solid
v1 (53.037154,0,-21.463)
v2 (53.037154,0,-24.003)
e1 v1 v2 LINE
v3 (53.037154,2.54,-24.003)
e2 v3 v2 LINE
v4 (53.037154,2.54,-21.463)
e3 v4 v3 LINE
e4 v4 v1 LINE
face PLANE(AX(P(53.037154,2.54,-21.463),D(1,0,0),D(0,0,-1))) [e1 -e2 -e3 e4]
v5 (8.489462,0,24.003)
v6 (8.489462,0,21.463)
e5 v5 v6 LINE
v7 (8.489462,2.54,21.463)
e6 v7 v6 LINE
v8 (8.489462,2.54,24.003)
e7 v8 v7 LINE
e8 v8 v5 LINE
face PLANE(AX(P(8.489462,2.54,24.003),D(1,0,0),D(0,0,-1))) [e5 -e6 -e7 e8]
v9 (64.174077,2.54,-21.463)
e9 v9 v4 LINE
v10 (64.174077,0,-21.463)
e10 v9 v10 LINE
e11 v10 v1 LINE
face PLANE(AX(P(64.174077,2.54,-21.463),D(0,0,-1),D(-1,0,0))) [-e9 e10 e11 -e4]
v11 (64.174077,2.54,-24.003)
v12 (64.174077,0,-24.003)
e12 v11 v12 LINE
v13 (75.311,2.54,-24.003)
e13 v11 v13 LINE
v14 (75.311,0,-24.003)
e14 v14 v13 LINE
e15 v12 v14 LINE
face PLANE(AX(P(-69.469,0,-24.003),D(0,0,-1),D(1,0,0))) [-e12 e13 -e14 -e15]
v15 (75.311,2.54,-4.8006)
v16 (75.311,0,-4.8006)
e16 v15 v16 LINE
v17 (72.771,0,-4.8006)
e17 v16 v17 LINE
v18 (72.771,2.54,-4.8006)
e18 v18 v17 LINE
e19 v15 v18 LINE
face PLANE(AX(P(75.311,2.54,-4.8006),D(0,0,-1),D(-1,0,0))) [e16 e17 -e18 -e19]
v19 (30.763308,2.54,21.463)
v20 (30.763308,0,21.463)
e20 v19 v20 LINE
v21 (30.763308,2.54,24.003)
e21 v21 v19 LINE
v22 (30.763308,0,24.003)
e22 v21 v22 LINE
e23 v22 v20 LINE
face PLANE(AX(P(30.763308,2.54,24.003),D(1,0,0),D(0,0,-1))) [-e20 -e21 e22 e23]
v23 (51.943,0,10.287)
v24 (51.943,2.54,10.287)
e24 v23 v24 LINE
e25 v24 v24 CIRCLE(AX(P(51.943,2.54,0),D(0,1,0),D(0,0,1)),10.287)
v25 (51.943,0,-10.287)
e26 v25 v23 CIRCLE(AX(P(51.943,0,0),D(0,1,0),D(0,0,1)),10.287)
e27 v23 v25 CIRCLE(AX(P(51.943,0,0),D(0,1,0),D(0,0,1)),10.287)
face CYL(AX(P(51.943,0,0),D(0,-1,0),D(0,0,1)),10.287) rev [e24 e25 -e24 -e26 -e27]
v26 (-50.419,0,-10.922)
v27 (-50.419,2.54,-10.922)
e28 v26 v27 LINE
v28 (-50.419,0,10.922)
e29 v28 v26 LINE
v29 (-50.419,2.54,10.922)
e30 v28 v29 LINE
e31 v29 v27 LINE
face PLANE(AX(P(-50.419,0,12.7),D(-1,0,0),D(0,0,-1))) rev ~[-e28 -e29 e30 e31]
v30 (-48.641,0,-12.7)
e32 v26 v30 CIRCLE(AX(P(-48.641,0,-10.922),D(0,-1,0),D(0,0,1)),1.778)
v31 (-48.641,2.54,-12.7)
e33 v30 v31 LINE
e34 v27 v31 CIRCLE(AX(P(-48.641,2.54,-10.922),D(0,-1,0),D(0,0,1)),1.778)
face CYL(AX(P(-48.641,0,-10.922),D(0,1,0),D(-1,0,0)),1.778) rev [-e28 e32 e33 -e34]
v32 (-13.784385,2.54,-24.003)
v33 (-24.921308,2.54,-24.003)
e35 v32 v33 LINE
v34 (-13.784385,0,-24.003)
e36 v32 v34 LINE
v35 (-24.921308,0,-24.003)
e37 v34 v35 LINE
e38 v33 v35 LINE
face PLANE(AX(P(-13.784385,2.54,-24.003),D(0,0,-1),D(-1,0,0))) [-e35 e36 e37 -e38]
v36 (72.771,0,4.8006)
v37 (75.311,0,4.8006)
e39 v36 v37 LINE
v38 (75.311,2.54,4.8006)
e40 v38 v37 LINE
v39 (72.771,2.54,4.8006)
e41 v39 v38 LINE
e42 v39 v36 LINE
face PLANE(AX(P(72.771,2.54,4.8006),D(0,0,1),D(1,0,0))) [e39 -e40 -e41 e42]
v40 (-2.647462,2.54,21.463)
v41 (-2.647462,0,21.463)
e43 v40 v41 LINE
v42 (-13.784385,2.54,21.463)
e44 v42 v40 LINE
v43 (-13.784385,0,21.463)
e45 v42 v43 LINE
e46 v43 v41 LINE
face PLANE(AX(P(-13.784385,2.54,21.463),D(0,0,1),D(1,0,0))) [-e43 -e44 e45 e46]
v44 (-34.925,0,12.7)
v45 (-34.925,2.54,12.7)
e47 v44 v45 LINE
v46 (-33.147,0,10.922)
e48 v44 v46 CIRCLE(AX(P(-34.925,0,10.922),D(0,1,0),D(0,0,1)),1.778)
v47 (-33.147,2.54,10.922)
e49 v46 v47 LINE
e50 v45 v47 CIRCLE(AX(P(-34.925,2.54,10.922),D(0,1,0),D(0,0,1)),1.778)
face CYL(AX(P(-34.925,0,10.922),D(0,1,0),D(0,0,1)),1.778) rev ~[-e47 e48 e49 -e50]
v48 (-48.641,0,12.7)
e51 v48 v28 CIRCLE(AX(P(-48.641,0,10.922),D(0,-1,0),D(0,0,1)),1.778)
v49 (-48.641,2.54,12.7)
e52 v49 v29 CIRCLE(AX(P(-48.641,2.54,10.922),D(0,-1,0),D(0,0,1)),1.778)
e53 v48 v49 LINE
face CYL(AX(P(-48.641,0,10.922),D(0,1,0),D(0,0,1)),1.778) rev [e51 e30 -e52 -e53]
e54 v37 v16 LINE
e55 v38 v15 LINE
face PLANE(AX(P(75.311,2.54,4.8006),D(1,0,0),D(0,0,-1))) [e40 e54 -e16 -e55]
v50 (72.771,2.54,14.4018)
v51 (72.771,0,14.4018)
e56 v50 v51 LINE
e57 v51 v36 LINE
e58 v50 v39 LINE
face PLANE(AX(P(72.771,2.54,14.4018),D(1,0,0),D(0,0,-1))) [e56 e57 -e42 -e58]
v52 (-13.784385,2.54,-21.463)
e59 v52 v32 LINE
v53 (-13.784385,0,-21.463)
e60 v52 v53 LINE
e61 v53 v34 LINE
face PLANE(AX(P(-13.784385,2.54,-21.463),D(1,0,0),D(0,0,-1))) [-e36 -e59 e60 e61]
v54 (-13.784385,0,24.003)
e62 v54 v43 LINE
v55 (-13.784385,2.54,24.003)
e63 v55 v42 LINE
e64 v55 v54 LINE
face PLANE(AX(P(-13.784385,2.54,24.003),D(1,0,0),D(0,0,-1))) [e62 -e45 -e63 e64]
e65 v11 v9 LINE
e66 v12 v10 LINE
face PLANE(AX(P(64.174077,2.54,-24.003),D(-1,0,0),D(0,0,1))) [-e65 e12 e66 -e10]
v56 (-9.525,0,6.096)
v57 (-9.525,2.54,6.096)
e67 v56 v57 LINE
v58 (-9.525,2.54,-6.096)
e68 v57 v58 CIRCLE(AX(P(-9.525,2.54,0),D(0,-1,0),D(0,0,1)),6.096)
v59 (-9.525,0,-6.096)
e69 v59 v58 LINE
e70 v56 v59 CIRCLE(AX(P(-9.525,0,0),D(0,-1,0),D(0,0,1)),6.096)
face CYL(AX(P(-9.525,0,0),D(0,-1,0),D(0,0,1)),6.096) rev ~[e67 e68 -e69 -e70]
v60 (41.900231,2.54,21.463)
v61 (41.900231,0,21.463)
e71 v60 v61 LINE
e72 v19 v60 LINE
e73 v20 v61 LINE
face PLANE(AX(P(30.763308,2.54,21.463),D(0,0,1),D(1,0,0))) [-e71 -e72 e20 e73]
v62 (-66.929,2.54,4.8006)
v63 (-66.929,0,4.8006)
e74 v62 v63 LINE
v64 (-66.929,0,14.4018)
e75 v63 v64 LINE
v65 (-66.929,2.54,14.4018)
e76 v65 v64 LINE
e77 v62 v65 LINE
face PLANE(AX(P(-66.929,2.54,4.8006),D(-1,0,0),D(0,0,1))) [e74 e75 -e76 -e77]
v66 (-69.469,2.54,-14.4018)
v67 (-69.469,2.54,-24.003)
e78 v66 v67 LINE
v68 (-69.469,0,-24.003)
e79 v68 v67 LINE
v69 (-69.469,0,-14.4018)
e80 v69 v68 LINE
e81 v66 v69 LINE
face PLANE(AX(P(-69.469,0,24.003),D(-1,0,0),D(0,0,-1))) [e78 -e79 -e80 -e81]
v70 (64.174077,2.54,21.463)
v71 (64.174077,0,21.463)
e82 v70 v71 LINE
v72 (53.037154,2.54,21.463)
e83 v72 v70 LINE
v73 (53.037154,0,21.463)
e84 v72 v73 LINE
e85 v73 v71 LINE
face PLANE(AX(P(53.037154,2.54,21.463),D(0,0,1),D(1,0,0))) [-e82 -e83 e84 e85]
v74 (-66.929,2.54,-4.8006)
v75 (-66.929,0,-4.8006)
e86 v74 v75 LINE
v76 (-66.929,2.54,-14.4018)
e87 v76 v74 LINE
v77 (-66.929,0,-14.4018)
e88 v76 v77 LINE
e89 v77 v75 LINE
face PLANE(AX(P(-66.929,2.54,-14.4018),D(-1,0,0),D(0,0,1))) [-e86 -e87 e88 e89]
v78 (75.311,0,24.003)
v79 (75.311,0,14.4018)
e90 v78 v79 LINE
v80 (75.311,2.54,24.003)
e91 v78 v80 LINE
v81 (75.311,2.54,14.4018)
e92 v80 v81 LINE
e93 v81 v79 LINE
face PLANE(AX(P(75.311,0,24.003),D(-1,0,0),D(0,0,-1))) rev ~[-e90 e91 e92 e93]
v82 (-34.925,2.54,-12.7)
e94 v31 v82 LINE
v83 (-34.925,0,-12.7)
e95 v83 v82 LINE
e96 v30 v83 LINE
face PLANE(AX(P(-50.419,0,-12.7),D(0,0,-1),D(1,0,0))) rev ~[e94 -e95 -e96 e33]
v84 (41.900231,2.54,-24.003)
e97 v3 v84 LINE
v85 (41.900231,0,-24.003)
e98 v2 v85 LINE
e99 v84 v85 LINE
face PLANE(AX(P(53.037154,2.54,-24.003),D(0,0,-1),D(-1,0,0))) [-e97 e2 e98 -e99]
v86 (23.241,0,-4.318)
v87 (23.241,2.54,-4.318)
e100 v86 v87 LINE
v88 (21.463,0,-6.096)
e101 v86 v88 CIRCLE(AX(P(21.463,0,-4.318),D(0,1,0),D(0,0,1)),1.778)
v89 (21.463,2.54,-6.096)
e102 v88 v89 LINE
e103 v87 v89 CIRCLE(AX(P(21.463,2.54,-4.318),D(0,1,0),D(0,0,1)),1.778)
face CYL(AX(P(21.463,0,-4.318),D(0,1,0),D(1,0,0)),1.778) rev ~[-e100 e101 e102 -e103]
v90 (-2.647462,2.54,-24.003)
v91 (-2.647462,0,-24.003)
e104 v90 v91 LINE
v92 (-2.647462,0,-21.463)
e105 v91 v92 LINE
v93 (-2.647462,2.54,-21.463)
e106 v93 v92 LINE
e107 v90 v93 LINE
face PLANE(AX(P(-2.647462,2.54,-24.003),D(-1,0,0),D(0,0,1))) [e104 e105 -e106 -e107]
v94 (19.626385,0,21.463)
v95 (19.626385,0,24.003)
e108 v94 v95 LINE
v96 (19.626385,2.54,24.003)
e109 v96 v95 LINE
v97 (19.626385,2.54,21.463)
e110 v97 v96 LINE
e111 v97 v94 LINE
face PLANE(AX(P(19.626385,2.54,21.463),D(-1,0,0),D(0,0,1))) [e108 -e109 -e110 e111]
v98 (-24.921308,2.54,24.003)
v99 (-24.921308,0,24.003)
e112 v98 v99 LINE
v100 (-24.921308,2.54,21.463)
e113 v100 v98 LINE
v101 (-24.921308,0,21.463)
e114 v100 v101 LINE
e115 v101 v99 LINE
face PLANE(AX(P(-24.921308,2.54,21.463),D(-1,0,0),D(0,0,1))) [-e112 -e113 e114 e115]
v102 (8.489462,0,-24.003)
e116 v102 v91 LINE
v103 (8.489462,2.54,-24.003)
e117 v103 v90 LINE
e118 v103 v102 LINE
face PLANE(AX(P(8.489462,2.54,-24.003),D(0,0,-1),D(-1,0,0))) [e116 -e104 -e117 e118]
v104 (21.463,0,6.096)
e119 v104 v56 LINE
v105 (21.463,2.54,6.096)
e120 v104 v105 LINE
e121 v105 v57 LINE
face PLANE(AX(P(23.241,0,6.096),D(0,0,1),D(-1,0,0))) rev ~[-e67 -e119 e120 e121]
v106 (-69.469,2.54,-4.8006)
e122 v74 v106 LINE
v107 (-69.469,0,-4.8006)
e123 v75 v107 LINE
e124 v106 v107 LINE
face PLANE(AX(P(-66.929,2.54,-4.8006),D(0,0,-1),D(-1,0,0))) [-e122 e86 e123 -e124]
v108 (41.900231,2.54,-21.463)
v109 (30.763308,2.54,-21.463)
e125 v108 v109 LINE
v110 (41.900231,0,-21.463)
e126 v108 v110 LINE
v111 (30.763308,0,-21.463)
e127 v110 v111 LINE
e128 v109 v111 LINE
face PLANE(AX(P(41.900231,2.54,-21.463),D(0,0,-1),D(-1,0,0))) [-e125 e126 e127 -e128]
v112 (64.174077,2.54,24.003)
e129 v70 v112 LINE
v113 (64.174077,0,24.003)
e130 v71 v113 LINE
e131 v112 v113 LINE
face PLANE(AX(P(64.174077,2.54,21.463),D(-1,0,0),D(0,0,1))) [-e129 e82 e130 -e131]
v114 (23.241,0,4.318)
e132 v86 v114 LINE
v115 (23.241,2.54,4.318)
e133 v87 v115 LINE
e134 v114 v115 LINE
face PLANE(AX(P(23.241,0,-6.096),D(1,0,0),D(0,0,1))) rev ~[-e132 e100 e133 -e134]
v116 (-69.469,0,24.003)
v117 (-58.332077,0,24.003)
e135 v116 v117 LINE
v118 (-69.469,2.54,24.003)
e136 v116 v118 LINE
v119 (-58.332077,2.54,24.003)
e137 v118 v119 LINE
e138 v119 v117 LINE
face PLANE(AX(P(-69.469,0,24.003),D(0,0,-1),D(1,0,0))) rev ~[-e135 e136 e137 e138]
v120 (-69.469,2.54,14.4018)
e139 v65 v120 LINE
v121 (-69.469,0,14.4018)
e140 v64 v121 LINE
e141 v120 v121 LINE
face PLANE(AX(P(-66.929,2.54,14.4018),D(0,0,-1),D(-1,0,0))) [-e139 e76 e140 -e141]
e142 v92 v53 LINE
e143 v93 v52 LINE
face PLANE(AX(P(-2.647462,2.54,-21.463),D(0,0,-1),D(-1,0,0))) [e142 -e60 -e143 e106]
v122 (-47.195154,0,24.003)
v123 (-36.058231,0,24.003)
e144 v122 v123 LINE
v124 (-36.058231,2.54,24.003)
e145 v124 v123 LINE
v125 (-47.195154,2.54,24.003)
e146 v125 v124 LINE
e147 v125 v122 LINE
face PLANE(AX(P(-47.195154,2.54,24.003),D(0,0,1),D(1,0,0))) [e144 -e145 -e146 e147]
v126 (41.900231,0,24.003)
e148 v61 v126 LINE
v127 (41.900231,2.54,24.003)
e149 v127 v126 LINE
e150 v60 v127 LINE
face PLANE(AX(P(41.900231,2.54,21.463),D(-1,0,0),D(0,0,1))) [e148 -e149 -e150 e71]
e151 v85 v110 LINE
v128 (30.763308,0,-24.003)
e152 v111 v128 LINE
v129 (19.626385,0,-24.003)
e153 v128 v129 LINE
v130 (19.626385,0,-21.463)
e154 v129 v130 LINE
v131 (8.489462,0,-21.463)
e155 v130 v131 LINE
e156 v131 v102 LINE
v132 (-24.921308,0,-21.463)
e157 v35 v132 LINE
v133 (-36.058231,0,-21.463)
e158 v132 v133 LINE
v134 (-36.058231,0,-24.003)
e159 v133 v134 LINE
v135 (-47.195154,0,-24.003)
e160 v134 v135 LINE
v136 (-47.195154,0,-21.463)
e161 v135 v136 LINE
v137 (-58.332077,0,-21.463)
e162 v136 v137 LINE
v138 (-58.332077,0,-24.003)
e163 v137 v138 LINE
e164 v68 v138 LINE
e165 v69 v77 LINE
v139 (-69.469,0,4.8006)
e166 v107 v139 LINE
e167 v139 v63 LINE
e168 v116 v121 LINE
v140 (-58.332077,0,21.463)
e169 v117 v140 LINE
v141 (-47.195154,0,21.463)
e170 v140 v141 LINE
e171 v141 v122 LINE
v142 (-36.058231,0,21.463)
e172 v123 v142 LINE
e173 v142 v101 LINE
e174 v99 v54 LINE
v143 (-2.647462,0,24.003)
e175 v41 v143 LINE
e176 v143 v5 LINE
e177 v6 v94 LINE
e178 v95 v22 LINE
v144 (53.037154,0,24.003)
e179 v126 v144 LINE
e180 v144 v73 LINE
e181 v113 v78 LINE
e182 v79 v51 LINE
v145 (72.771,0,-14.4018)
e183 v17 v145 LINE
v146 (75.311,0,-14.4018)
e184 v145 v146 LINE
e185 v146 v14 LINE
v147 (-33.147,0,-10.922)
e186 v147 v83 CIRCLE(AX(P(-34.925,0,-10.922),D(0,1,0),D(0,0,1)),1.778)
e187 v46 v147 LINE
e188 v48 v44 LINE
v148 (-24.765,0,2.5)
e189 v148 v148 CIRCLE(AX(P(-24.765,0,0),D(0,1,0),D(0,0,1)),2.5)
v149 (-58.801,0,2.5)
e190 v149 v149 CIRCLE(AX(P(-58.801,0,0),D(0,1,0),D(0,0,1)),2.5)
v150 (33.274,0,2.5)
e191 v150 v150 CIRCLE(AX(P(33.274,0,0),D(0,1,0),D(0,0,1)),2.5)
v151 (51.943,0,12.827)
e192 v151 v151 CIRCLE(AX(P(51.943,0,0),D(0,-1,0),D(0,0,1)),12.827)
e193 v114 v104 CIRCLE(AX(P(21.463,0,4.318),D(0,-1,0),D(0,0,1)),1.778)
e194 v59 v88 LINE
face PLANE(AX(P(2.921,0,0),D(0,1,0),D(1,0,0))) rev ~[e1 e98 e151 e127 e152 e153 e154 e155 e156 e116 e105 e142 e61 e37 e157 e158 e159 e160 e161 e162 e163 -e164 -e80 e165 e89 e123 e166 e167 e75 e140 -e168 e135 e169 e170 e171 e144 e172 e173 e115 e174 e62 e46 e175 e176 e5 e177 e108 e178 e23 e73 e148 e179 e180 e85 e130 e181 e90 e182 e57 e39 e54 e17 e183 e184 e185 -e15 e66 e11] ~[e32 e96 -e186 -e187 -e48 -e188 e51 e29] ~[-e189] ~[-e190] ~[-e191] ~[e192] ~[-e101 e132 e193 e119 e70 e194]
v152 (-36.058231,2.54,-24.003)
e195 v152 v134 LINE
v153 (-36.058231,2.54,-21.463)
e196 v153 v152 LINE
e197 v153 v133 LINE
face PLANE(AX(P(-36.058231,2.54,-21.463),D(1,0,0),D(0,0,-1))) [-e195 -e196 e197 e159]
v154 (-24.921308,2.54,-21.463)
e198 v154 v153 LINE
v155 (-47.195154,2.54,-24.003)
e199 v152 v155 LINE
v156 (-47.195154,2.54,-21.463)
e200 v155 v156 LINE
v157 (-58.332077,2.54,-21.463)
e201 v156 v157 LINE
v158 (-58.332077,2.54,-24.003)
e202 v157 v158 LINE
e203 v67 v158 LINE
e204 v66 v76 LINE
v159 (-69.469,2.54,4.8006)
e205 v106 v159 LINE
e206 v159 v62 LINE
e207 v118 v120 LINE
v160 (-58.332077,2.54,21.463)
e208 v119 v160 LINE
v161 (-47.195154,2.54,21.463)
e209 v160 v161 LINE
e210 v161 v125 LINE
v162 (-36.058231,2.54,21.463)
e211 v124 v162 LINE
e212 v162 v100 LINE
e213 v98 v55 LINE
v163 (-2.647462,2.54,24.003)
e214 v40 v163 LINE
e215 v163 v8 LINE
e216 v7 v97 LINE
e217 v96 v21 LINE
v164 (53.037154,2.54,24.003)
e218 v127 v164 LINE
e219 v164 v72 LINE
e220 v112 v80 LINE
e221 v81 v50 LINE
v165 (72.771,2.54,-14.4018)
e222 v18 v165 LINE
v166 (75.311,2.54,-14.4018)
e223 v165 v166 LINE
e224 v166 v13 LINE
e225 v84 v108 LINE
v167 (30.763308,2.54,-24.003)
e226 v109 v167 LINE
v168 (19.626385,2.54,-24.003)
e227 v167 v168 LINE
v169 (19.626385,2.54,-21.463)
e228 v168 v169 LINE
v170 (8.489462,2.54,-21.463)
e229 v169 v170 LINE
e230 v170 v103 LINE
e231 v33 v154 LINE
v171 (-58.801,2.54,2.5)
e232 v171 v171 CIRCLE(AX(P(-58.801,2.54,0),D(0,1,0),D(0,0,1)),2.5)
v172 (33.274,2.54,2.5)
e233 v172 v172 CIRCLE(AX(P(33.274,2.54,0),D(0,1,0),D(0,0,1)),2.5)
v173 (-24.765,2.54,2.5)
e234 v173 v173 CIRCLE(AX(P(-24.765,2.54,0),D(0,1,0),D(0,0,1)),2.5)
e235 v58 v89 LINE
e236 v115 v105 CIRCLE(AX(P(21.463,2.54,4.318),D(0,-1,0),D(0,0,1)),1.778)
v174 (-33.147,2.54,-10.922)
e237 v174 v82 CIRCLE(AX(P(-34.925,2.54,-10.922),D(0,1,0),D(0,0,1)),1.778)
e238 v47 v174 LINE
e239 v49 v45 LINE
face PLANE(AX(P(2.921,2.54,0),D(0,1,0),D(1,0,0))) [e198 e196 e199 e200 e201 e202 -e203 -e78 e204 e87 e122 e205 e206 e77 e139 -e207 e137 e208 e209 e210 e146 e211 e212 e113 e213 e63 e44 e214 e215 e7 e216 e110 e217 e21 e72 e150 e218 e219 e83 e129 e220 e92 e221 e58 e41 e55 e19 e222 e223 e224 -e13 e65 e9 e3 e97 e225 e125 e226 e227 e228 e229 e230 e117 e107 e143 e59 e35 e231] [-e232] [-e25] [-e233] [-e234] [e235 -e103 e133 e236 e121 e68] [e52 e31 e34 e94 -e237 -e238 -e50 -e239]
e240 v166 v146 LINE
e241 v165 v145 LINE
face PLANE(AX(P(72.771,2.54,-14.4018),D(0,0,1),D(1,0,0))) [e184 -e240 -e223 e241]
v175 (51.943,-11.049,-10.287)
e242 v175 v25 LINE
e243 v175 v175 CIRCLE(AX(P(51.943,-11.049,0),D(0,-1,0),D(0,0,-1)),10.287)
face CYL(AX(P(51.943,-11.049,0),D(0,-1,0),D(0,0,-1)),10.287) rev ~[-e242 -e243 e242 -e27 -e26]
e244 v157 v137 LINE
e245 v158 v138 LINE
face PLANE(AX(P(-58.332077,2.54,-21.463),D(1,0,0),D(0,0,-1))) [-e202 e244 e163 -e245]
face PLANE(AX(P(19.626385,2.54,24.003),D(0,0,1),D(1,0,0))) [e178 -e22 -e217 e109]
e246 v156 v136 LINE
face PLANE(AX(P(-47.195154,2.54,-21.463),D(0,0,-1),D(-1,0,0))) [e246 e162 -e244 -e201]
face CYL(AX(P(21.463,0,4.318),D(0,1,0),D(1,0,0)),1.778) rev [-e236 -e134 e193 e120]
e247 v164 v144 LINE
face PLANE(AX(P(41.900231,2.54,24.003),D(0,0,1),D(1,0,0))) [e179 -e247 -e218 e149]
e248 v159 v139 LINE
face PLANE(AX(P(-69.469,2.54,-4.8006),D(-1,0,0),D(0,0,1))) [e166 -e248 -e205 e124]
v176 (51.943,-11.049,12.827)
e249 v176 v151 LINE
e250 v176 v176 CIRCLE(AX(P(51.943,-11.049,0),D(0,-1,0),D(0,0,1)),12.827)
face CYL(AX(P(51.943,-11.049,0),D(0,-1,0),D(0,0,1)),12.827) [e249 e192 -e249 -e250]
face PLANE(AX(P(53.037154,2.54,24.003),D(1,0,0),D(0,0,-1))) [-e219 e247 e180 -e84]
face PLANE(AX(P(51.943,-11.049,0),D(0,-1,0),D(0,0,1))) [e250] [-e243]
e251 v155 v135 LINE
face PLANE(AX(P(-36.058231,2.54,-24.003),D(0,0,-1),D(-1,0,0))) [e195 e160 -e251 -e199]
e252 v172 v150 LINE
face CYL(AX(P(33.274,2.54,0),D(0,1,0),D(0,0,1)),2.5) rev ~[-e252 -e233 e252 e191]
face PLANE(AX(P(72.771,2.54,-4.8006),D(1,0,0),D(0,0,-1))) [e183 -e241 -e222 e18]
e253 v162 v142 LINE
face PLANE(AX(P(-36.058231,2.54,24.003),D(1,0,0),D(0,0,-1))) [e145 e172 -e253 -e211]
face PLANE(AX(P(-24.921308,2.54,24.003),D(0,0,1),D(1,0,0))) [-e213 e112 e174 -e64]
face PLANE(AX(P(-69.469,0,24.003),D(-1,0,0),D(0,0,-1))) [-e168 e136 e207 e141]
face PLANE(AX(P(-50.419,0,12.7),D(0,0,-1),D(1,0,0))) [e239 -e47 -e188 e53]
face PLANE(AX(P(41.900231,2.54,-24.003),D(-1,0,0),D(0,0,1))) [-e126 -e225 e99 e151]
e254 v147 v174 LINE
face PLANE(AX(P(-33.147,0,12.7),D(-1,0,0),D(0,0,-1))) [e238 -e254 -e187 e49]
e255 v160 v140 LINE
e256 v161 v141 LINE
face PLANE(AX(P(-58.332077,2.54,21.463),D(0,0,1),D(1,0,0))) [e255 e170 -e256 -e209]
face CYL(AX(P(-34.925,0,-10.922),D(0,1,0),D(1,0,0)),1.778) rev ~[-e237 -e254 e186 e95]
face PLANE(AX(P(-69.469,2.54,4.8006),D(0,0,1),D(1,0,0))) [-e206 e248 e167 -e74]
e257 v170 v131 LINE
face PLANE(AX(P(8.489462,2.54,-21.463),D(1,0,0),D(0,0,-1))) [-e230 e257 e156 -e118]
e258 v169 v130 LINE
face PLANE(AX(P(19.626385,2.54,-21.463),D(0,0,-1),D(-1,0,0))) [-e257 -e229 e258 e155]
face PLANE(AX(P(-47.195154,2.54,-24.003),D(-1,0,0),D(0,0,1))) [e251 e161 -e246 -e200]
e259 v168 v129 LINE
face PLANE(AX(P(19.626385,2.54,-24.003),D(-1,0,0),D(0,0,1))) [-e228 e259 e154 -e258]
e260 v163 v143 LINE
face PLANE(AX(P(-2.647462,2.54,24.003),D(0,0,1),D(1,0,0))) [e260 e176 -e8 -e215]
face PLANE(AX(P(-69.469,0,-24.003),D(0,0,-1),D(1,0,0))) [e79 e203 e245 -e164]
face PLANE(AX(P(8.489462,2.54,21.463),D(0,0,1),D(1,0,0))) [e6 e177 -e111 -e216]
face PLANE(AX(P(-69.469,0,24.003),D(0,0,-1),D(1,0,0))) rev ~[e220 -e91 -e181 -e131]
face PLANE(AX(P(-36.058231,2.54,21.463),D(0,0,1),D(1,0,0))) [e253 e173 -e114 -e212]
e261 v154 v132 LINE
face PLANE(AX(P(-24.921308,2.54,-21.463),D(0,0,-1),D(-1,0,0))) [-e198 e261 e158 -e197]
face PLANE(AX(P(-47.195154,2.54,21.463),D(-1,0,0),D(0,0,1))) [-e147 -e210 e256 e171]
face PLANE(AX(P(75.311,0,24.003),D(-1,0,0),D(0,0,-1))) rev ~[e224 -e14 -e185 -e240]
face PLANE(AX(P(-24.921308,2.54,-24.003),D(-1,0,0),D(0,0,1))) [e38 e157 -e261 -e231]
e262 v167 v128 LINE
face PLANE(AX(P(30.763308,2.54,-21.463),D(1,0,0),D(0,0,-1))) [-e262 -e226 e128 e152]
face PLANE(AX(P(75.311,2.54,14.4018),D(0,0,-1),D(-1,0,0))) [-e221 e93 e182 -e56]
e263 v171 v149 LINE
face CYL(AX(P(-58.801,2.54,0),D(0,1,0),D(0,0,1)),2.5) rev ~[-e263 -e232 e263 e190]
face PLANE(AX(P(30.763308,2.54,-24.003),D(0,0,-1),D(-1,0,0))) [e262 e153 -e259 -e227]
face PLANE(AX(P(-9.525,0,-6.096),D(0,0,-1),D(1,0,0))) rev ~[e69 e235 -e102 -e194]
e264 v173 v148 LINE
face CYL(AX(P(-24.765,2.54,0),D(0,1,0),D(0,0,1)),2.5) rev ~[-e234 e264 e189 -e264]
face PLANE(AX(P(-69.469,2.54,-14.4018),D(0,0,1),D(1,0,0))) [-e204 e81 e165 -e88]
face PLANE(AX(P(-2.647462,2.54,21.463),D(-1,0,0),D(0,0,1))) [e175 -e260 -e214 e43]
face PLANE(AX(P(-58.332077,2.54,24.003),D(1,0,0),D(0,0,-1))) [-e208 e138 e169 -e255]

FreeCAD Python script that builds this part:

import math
import FreeCAD as App
import Part
import Sketcher
Q = App.Units.Quantity


def edges_at(feature, points):
    """Names of the edges that pass closest to the given points."""
    edges = feature.Shape.Edges
    near = lambda p: min(range(len(edges)), key=lambda i: edges[i].distToShape(Part.Vertex(*p))[0])
    return sorted({f"Edge{near(p) + 1}" for p in points})

doc = App.newDocument("Part")
body = doc.addObject("PartDesign::Body", "Body")

# Sketch on XZ plane
sketch1 = body.newObject("Sketcher::SketchObject", "Sketch")
sketch1.AttachmentSupport = (doc.getObject("XZ_Plane"), [""])
sketch1.MapMode = "FlatFace"
sketch1.addGeometry([
    Part.LineSegment(App.Vector(-69.469, -24.003, 0), App.Vector(-69.469, 24.003, 0)),  # 0
    Part.LineSegment(App.Vector(-69.469, 24.003, 0), App.Vector(75.311, 24.003, 0)),  # 1
    Part.LineSegment(App.Vector(75.311, 24.003, 0), App.Vector(75.311, -24.003, 0)),  # 2
    Part.LineSegment(App.Vector(75.311, -24.003, 0), App.Vector(-69.469, -24.003, 0)),  # 3
    Part.LineSegment(App.Vector(-33.147, 12.7, 0), App.Vector(-50.419, 12.7, 0)),  # 4
    Part.LineSegment(App.Vector(-50.419, 12.7, 0), App.Vector(-50.419, -12.7, 0)),  # 5
    Part.LineSegment(App.Vector(-50.419, -12.7, 0), App.Vector(-33.147, -12.7, 0)),  # 6
    Part.LineSegment(App.Vector(-33.147, -12.7, 0), App.Vector(-33.147, 12.7, 0)),  # 7
    Part.LineSegment(App.Vector(23.241, -6.096, 0), App.Vector(23.241, 6.096, 0)),  # 8
    Part.LineSegment(App.Vector(23.241, 6.096, 0), App.Vector(-9.525, 6.096, 0)),  # 9
    Part.ArcOfCircle(Part.Circle(App.Vector(-9.525, 0, 0), App.Vector(0, 0, 1), 6.096), math.radians(90), math.radians(270)),  # 10
    Part.LineSegment(App.Vector(-9.525, -6.096, 0), App.Vector(23.241, -6.096, 0)),  # 11
    Part.Circle(App.Vector(51.943, 0, 0), App.Vector(0, 0, 1), 10.287),  # 12
], False)
sketch1.addConstraint([
    Sketcher.Constraint("Coincident", 0, 2, 1, 1),
    Sketcher.Constraint("Coincident", 1, 2, 2, 1),
    Sketcher.Constraint("Coincident", 2, 2, 3, 1),
    Sketcher.Constraint("Coincident", 3, 2, 0, 1),
    Sketcher.Constraint("Coincident", 4, 2, 5, 1),
    Sketcher.Constraint("Coincident", 5, 2, 6, 1),
    Sketcher.Constraint("Coincident", 6, 2, 7, 1),
    Sketcher.Constraint("Coincident", 7, 2, 4, 1),
    Sketcher.Constraint("Coincident", 8, 2, 9, 1),
    Sketcher.Constraint("Tangent", 9, 2, 10, 1),
    Sketcher.Constraint("Tangent", 10, 2, 11, 1),
    Sketcher.Constraint("Coincident", 11, 2, 8, 1),
    Sketcher.Constraint("Vertical", 0),
    Sketcher.Constraint("Horizontal", 1),
    Sketcher.Constraint("Vertical", 2),
    Sketcher.Constraint("Horizontal", 3),
    Sketcher.Constraint("Horizontal", 4),
    Sketcher.Constraint("Vertical", 5),
    Sketcher.Constraint("Horizontal", 6),
    Sketcher.Constraint("Vertical", 7),
    Sketcher.Constraint("Vertical", 8),
    Sketcher.Constraint("Horizontal", 9),
    Sketcher.Constraint("Horizontal", 11),
    Sketcher.Constraint("PointOnObject", 10, 3, -1),
    Sketcher.Constraint("PointOnObject", 12, 3, -1),
    Sketcher.Constraint("Diameter", 12, Q("0.81 in")),
    Sketcher.Constraint("DistanceY", 5, 2, 5, 1, Q("1 in")),
    Sketcher.Constraint("Radius", 10, Q("0.24 in")),
    Sketcher.Constraint("DistanceX", 1, 1, 1, 2, Q("5.7 in")),
    Sketcher.Constraint("DistanceX", 4, 2, 4, 1, Q("0.68 in")),
    Sketcher.Constraint("DistanceX", 9, 2, 9, 1, Q("1.29 in")),
    Sketcher.Constraint("DistanceY", 0, 1, 0, 2, Q("1.89 in")),
    Sketcher.Constraint("DistanceY", -1, 1, 4, 2, Q("0.5 in")),
    Sketcher.Constraint("DistanceX", 10, 3, 12, 3, Q("2.42 in")),
    Sketcher.Constraint("DistanceX", 0, 2, 10, 3, Q("2.36 in")),
    Sketcher.Constraint("DistanceX", 0, 2, 4, 2, Q("0.75 in")),
    Sketcher.Constraint("DistanceX", 10, 3, -1, 1, Q("0.375 in")),
    Sketcher.Constraint("DistanceY", -1, 1, 0, 2, Q("0.945 in")),
])
pad1 = body.newObject("PartDesign::Pad", "Pad")
pad1.Profile = sketch1
pad1.Length = Q("0.1 in")
pad1.Reversed = True
doc.recompute()

fillet = body.newObject("PartDesign::Fillet", "Fillet")
fillet.Base = (pad1, edges_at(pad1, [
    (23.241, 1.27, 6.096),
    (23.241, 1.27, -6.096),
    (-50.419, 1.27, -12.7),
    (-50.419, 1.27, 12.7),
    (-33.147, 1.27, 12.7),
    (-33.147, 1.27, -12.7),
]))
fillet.Radius = Q("0.07 in")

# Sketch on XZ plane
sketch2 = body.newObject("Sketcher::SketchObject", "Sketch001")
sketch2.AttachmentSupport = (doc.getObject("XZ_Plane"), [""])
sketch2.MapMode = "FlatFace"
sketch2.AttachmentOffset = App.Placement(App.Vector(0, 0, -0.1 * 25.4), App.Rotation())
sketch2.addGeometry([
    Part.LineSegment(App.Vector(-85.724, -40.258, 0), App.Vector(-85.724, 40.258, 0)),  # 0
    Part.LineSegment(App.Vector(-85.724, 40.258, 0), App.Vector(91.566, 40.258, 0)),  # 1
    Part.LineSegment(App.Vector(91.566, 40.258, 0), App.Vector(91.566, -40.258, 0)),  # 2
    Part.LineSegment(App.Vector(91.566, -40.258, 0), App.Vector(-85.724, -40.258, 0)),  # 3
    Part.LineSegment(App.Vector(-69.469, -14.4018, 0), App.Vector(-69.469, -24.003, 0)),  # 4
    Part.LineSegment(App.Vector(-69.469, -24.003, 0), App.Vector(-58.332077, -24.003, 0)),  # 5
    Part.LineSegment(App.Vector(-58.332077, -24.003, 0), App.Vector(-58.332077, -21.463, 0)),  # 6
    Part.LineSegment(App.Vector(-58.332077, -21.463, 0), App.Vector(-47.195154, -21.463, 0)),  # 7
    Part.LineSegment(App.Vector(-47.195154, -21.463, 0), App.Vector(-47.195154, -24.003, 0)),  # 8
    Part.LineSegment(App.Vector(-47.195154, -24.003, 0), App.Vector(-36.058231, -24.003, 0)),  # 9
    Part.LineSegment(App.Vector(-36.058231, -24.003, 0), App.Vector(-36.058231, -21.463, 0)),  # 10
    Part.LineSegment(App.Vector(-36.058231, -21.463, 0), App.Vector(-24.921308, -21.463, 0)),  # 11
    Part.LineSegment(App.Vector(-24.921308, -21.463, 0), App.Vector(-24.921308, -24.003, 0)),  # 12
    Part.LineSegment(App.Vector(-24.921308, -24.003, 0), App.Vector(-13.784385, -24.003, 0)),  # 13
    Part.LineSegment(App.Vector(-13.784385, -24.003, 0), App.Vector(-13.784385, -21.463, 0)),  # 14
    Part.LineSegment(App.Vector(-13.784385, -21.463, 0), App.Vector(-2.647462, -21.463, 0)),  # 15
    Part.LineSegment(App.Vector(-2.647462, -21.463, 0), App.Vector(-2.647462, -24.003, 0)),  # 16
    Part.LineSegment(App.Vector(-2.647462, -24.003, 0), App.Vector(8.489462, -24.003, 0)),  # 17
    Part.LineSegment(App.Vector(8.489462, -24.003, 0), App.Vector(8.489462, -21.463, 0)),  # 18
    Part.LineSegment(App.Vector(8.489462, -21.463, 0), App.Vector(19.626385, -21.463, 0)),  # 19
    Part.LineSegment(App.Vector(19.626385, -21.463, 0), App.Vector(19.626385, -24.003, 0)),  # 20
    Part.LineSegment(App.Vector(19.626385, -24.003, 0), App.Vector(30.763308, -24.003, 0)),  # 21
    Part.LineSegment(App.Vector(30.763308, -24.003, 0), App.Vector(30.763308, -21.463, 0)),  # 22
    Part.LineSegment(App.Vector(30.763308, -21.463, 0), App.Vector(41.900231, -21.463, 0)),  # 23
    Part.LineSegment(App.Vector(41.900231, -21.463, 0), App.Vector(41.900231, -24.003, 0)),  # 24
    Part.LineSegment(App.Vector(41.900231, -24.003, 0), App.Vector(53.037154, -24.003, 0)),  # 25
    Part.LineSegment(App.Vector(53.037154, -24.003, 0), App.Vector(53.037154, -21.463, 0)),  # 26
    Part.LineSegment(App.Vector(53.037154, -21.463, 0), App.Vector(64.174077, -21.463, 0)),  # 27
    Part.LineSegment(App.Vector(64.174077, -21.463, 0), App.Vector(64.174077, -24.003, 0)),  # 28
    Part.LineSegment(App.Vector(64.174077, -24.003, 0), App.Vector(75.311, -24.003, 0)),  # 29
    Part.LineSegment(App.Vector(75.311, -24.003, 0), App.Vector(75.311, -14.4018, 0)),  # 30
    Part.LineSegment(App.Vector(75.311, -14.4018, 0), App.Vector(72.771, -14.4018, 0)),  # 31
    Part.LineSegment(App.Vector(72.771, -14.4018, 0), App.Vector(72.771, -4.8006, 0)),  # 32
    Part.LineSegment(App.Vector(72.771, -4.8006, 0), App.Vector(75.311, -4.8006, 0)),  # 33
    Part.LineSegment(App.Vector(75.311, -4.8006, 0), App.Vector(75.311, 4.8006, 0)),  # 34
    Part.LineSegment(App.Vector(75.311, 4.8006, 0), App.Vector(72.771, 4.8006, 0)),  # 35
    Part.LineSegment(App.Vector(72.771, 4.8006, 0), App.Vector(72.771, 14.4018, 0)),  # 36
    Part.LineSegment(App.Vector(72.771, 14.4018, 0), App.Vector(75.311, 14.4018, 0)),  # 37
    Part.LineSegment(App.Vector(75.311, 14.4018, 0), App.Vector(75.311, 24.003, 0)),  # 38
    Part.LineSegment(App.Vector(75.311, 24.003, 0), App.Vector(64.174077, 24.003, 0)),  # 39
    Part.LineSegment(App.Vector(64.174077, 24.003, 0), App.Vector(64.174077, 21.463, 0)),  # 40
    Part.LineSegment(App.Vector(64.174077, 21.463, 0), App.Vector(53.037154, 21.463, 0)),  # 41
    Part.LineSegment(App.Vector(53.037154, 21.463, 0), App.Vector(53.037154, 24.003, 0)),  # 42
    Part.LineSegment(App.Vector(53.037154, 24.003, 0), App.Vector(41.900231, 24.003, 0)),  # 43
    Part.LineSegment(App.Vector(41.900231, 24.003, 0), App.Vector(41.900231, 21.463, 0)),  # 44
    Part.LineSegment(App.Vector(41.900231, 21.463, 0), App.Vector(30.763308, 21.463, 0)),  # 45
    Part.LineSegment(App.Vector(30.763308, 21.463, 0), App.Vector(30.763308, 24.003, 0)),  # 46
    Part.LineSegment(App.Vector(30.763308, 24.003, 0), App.Vector(19.626385, 24.003, 0)),  # 47
    Part.LineSegment(App.Vector(19.626385, 24.003, 0), App.Vector(19.626385, 21.463, 0)),  # 48
    Part.LineSegment(App.Vector(19.626385, 21.463, 0), App.Vector(8.489462, 21.463, 0)),  # 49
    Part.LineSegment(App.Vector(8.489462, 21.463, 0), App.Vector(8.489462, 24.003, 0)),  # 50
    Part.LineSegment(App.Vector(8.489462, 24.003, 0), App.Vector(-2.647462, 24.003, 0)),  # 51
    Part.LineSegment(App.Vector(-2.647462, 24.003, 0), App.Vector(-2.647462, 21.463, 0)),  # 52
    Part.LineSegment(App.Vector(-2.647462, 21.463, 0), App.Vector(-13.784385, 21.463, 0)),  # 53
    Part.LineSegment(App.Vector(-13.784385, 21.463, 0), App.Vector(-13.784385, 24.003, 0)),  # 54
    Part.LineSegment(App.Vector(-13.784385, 24.003, 0), App.Vector(-24.921308, 24.003, 0)),  # 55
    Part.LineSegment(App.Vector(-24.921308, 24.003, 0), App.Vector(-24.921308, 21.463, 0)),  # 56
    Part.LineSegment(App.Vector(-24.921308, 21.463, 0), App.Vector(-36.058231, 21.463, 0)),  # 57
    Part.LineSegment(App.Vector(-36.058231, 21.463, 0), App.Vector(-36.058231, 24.003, 0)),  # 58
    Part.LineSegment(App.Vector(-36.058231, 24.003, 0), App.Vector(-47.195154, 24.003, 0)),  # 59
    Part.LineSegment(App.Vector(-47.195154, 24.003, 0), App.Vector(-47.195154, 21.463, 0)),  # 60
    Part.LineSegment(App.Vector(-47.195154, 21.463, 0), App.Vector(-58.332077, 21.463, 0)),  # 61
    Part.LineSegment(App.Vector(-58.332077, 21.463, 0), App.Vector(-58.332077, 24.003, 0)),  # 62
    Part.LineSegment(App.Vector(-58.332077, 24.003, 0), App.Vector(-69.469, 24.003, 0)),  # 63
    Part.LineSegment(App.Vector(-69.469, 24.003, 0), App.Vector(-69.469, 14.4018, 0)),  # 64
    Part.LineSegment(App.Vector(-69.469, 14.4018, 0), App.Vector(-66.929, 14.4018, 0)),  # 65
    Part.LineSegment(App.Vector(-66.929, 14.4018, 0), App.Vector(-66.929, 4.8006, 0)),  # 66
    Part.LineSegment(App.Vector(-66.929, 4.8006, 0), App.Vector(-69.469, 4.8006, 0)),  # 67
    Part.LineSegment(App.Vector(-69.469, 4.8006, 0), App.Vector(-69.469, -4.8006, 0)),  # 68
    Part.LineSegment(App.Vector(-69.469, -4.8006, 0), App.Vector(-66.929, -4.8006, 0)),  # 69
    Part.LineSegment(App.Vector(-66.929, -4.8006, 0), App.Vector(-66.929, -14.4018, 0)),  # 70
    Part.LineSegment(App.Vector(-66.929, -14.4018, 0), App.Vector(-69.469, -14.4018, 0)),  # 71
], False)
sketch2.addConstraint([
    Sketcher.Constraint("Coincident", 0, 2, 1, 1),
    Sketcher.Constraint("Coincident", 1, 2, 2, 1),
    Sketcher.Constraint("Coincident", 2, 2, 3, 1),
    Sketcher.Constraint("Coincident", 3, 2, 0, 1),
    Sketcher.Constraint("Coincident", 4, 2, 5, 1),
    Sketcher.Constraint("Coincident", 5, 2, 6, 1),
    Sketcher.Constraint("Coincident", 6, 2, 7, 1),
    Sketcher.Constraint("Coincident", 7, 2, 8, 1),
    Sketcher.Constraint("Coincident", 8, 2, 9, 1),
    Sketcher.Constraint("Coincident", 9, 2, 10, 1),
    Sketcher.Constraint("Coincident", 10, 2, 11, 1),
    Sketcher.Constraint("Coincident", 11, 2, 12, 1),
    Sketcher.Constraint("Coincident", 12, 2, 13, 1),
    Sketcher.Constraint("Coincident", 13, 2, 14, 1),
    Sketcher.Constraint("Coincident", 14, 2, 15, 1),
    Sketcher.Constraint("Coincident", 15, 2, 16, 1),
    Sketcher.Constraint("Coincident", 16, 2, 17, 1),
    Sketcher.Constraint("Coincident", 17, 2, 18, 1),
    Sketcher.Constraint("Coincident", 18, 2, 19, 1),
    Sketcher.Constraint("Coincident", 19, 2, 20, 1),
    Sketcher.Constraint("Coincident", 20, 2, 21, 1),
    Sketcher.Constraint("Coincident", 21, 2, 22, 1),
    Sketcher.Constraint("Coincident", 22, 2, 23, 1),
    Sketcher.Constraint("Coincident", 23, 2, 24, 1),
    Sketcher.Constraint("Coincident", 24, 2, 25, 1),
    Sketcher.Constraint("Coincident", 25, 2, 26, 1),
    Sketcher.Constraint("Coincident", 26, 2, 27, 1),
    Sketcher.Constraint("Coincident", 27, 2, 28, 1),
    Sketcher.Constraint("Coincident", 28, 2, 29, 1),
    Sketcher.Constraint("Coincident", 29, 2, 30, 1),
    Sketcher.Constraint("Coincident", 30, 2, 31, 1),
    Sketcher.Constraint("Coincident", 31, 2, 32, 1),
    Sketcher.Constraint("Coincident", 32, 2, 33, 1),
    Sketcher.Constraint("Coincident", 33, 2, 34, 1),
    Sketcher.Constraint("Coincident", 34, 2, 35, 1),
    Sketcher.Constraint("Coincident", 35, 2, 36, 1),
    Sketcher.Constraint("Coincident", 36, 2, 37, 1),
    Sketcher.Constraint("Coincident", 37, 2, 38, 1),
    Sketcher.Constraint("Coincident", 38, 2, 39, 1),
    Sketcher.Constraint("Coincident", 39, 2, 40, 1),
    Sketcher.Constraint("Coincident", 40, 2, 41, 1),
    Sketcher.Constraint("Coincident", 41, 2, 42, 1),
    Sketcher.Constraint("Coincident", 42, 2, 43, 1),
    Sketcher.Constraint("Coincident", 43, 2, 44, 1),
    Sketcher.Constraint("Coincident", 44, 2, 45, 1),
    Sketcher.Constraint("Coincident", 45, 2, 46, 1),
    Sketcher.Constraint("Coincident", 46, 2, 47, 1),
    Sketcher.Constraint("Coincident", 47, 2, 48, 1),
    Sketcher.Constraint("Coincident", 48, 2, 49, 1),
    Sketcher.Constraint("Coincident", 49, 2, 50, 1),
    Sketcher.Constraint("Coincident", 50, 2, 51, 1),
    Sketcher.Constraint("Coincident", 51, 2, 52, 1),
    Sketcher.Constraint("Coincident", 52, 2, 53, 1),
    Sketcher.Constraint("Coincident", 53, 2, 54, 1),
    Sketcher.Constraint("Coincident", 54, 2, 55, 1),
    Sketcher.Constraint("Coincident", 55, 2, 56, 1),
    Sketcher.Constraint("Coincident", 56, 2, 57, 1),
    Sketcher.Constraint("Coincident", 57, 2, 58, 1),
    Sketcher.Constraint("Coincident", 58, 2, 59, 1),
    Sketcher.Constraint("Coincident", 59, 2, 60, 1),
    Sketcher.Constraint("Coincident", 60, 2, 61, 1),
    Sketcher.Constraint("Coincident", 61, 2, 62, 1),
    Sketcher.Constraint("Coincident", 62, 2, 63, 1),
    Sketcher.Constraint("Coincident", 63, 2, 64, 1),
    Sketcher.Constraint("Coincident", 64, 2, 65, 1),
    Sketcher.Constraint("Coincident", 65, 2, 66, 1),
    Sketcher.Constraint("Coincident", 66, 2, 67, 1),
    Sketcher.Constraint("Coincident", 67, 2, 68, 1),
    Sketcher.Constraint("Coincident", 68, 2, 69, 1),
    Sketcher.Constraint("Coincident", 69, 2, 70, 1),
    Sketcher.Constraint("Coincident", 70, 2, 71, 1),
    Sketcher.Constraint("Coincident", 71, 2, 4, 1),
    Sketcher.Constraint("Vertical", 0),
    Sketcher.Constraint("Horizontal", 1),
    Sketcher.Constraint("Vertical", 2),
    Sketcher.Constraint("Horizontal", 3),
    Sketcher.Constraint("Vertical", 4),
    Sketcher.Constraint("Horizontal", 5),
    Sketcher.Constraint("Vertical", 6),
    Sketcher.Constraint("Horizontal", 7),
    Sketcher.Constraint("Vertical", 8),
    Sketcher.Constraint("Horizontal", 9),
    Sketcher.Constraint("Vertical", 10),
    Sketcher.Constraint("Horizontal", 11),
    Sketcher.Constraint("Vertical", 12),
    Sketcher.Constraint("Horizontal", 13),
    Sketcher.Constraint("Vertical", 14),
    Sketcher.Constraint("Horizontal", 15),
    Sketcher.Constraint("Vertical", 16),
    Sketcher.Constraint("Horizontal", 17),
    Sketcher.Constraint("Vertical", 18),
    Sketcher.Constraint("Horizontal", 19),
    Sketcher.Constraint("Vertical", 20),
    Sketcher.Constraint("Horizontal", 21),
    Sketcher.Constraint("Vertical", 22),
    Sketcher.Constraint("Horizontal", 23),
    Sketcher.Constraint("Vertical", 24),
    Sketcher.Constraint("Horizontal", 25),
    Sketcher.Constraint("Vertical", 26),
    Sketcher.Constraint("Horizontal", 27),
    Sketcher.Constraint("Vertical", 28),
    Sketcher.Constraint("Horizontal", 29),
    Sketcher.Constraint("Vertical", 30),
    Sketcher.Constraint("Horizontal", 31),
    Sketcher.Constraint("Vertical", 32),
    Sketcher.Constraint("Horizontal", 33),
    Sketcher.Constraint("Vertical", 34),
    Sketcher.Constraint("Horizontal", 35),
    Sketcher.Constraint("Vertical", 36),
    Sketcher.Constraint("Horizontal", 37),
    Sketcher.Constraint("Vertical", 38),
    Sketcher.Constraint("Horizontal", 39),
    Sketcher.Constraint("Vertical", 40),
    Sketcher.Constraint("Horizontal", 41),
    Sketcher.Constraint("Vertical", 42),
    Sketcher.Constraint("Horizontal", 43),
    Sketcher.Constraint("Vertical", 44),
    Sketcher.Constraint("Horizontal", 45),
    Sketcher.Constraint("Vertical", 46),
    Sketcher.Constraint("Horizontal", 47),
    Sketcher.Constraint("Vertical", 48),
    Sketcher.Constraint("Horizontal", 49),
    Sketcher.Constraint("Vertical", 50),
    Sketcher.Constraint("Horizontal", 51),
    Sketcher.Constraint("Vertical", 52),
    Sketcher.Constraint("Horizontal", 53),
    Sketcher.Constraint("Vertical", 54),
    Sketcher.Constraint("Horizontal", 55),
    Sketcher.Constraint("Vertical", 56),
    Sketcher.Constraint("Horizontal", 57),
    Sketcher.Constraint("Vertical", 58),
    Sketcher.Constraint("Horizontal", 59),
    Sketcher.Constraint("Vertical", 60),
    Sketcher.Constraint("Horizontal", 61),
    Sketcher.Constraint("Vertical", 62),
    Sketcher.Constraint("Horizontal", 63),
    Sketcher.Constraint("Vertical", 64),
    Sketcher.Constraint("Horizontal", 65),
    Sketcher.Constraint("Vertical", 66),
    Sketcher.Constraint("Horizontal", 67),
    Sketcher.Constraint("Vertical", 68),
    Sketcher.Constraint("Horizontal", 69),
    Sketcher.Constraint("Vertical", 70),
    Sketcher.Constraint("Horizontal", 71),
    Sketcher.Constraint("Symmetric", 32, 2, 35, 2, -1),
    Sketcher.Constraint("Symmetric", 30, 2, 37, 2, -1),
    Sketcher.Constraint("Symmetric", 28, 2, 39, 2, -1),
    Sketcher.Constraint("Symmetric", 26, 2, 41, 2, -1),
    Sketcher.Constraint("Symmetric", 24, 2, 43, 2, -1),
    Sketcher.Constraint("Symmetric", 22, 2, 45, 2, -1),
    Sketcher.Constraint("Symmetric", 20, 2, 47, 2, -1),
    Sketcher.Constraint("Symmetric", 18, 2, 49, 2, -1),
    Sketcher.Constraint("Symmetric", 16, 2, 51, 2, -1),
    Sketcher.Constraint("Symmetric", 14, 2, 53, 2, -1),
    Sketcher.Constraint("Symmetric", 12, 2, 55, 2, -1),
    Sketcher.Constraint("Symmetric", 10, 2, 57, 2, -1),
    Sketcher.Constraint("Symmetric", 8, 2, 59, 2, -1),
    Sketcher.Constraint("Symmetric", 6, 2, 61, 2, -1),
    Sketcher.Constraint("Symmetric", 4, 2, 63, 2, -1),
    Sketcher.Constraint("Symmetric", 66, 2, 69, 2, -1),
    Sketcher.Constraint("Horizontal", 5, 2, 8, 2),
    Sketcher.Constraint("Horizontal", 7, 2, 10, 2),
    Sketcher.Constraint("Horizontal", 9, 2, 12, 2),
    Sketcher.Constraint("Horizontal", 11, 2, 14, 2),
    Sketcher.Constraint("Horizontal", 13, 2, 16, 2),
    Sketcher.Constraint("Horizontal", 15, 2, 18, 2),
    Sketcher.Constraint("Horizontal", 17, 2, 20, 2),
    Sketcher.Constraint("Horizontal", 19, 2, 22, 2),
    Sketcher.Constraint("Horizontal", 21, 2, 24, 2),
    Sketcher.Constraint("Horizontal", 23, 2, 26, 2),
    Sketcher.Constraint("Horizontal", 25, 2, 28, 2),
    Sketcher.Constraint("Horizontal", 37, 2, 64, 2),
    Sketcher.Constraint("Horizontal", 35, 2, 66, 2),
    Sketcher.Constraint("Horizontal", 31, 2, 70, 2),
    Sketcher.Constraint("Vertical", 30, 2, 33, 2),
    Sketcher.Constraint("Vertical", 64, 2, 67, 2),
    Sketcher.Constraint("Equal", 5, 7),
    Sketcher.Constraint("Equal", 7, 9),
    Sketcher.Constraint("Equal", 9, 11),
    Sketcher.Constraint("Equal", 11, 13),
    Sketcher.Constraint("Equal", 13, 15),
    Sketcher.Constraint("Equal", 15, 17),
    Sketcher.Constraint("Equal", 17, 19),
    Sketcher.Constraint("Equal", 19, 21),
    Sketcher.Constraint("Equal", 21, 23),
    Sketcher.Constraint("Equal", 23, 25),
    Sketcher.Constraint("Equal", 25, 27),
    Sketcher.Constraint("Equal", 27, 29),
    Sketcher.Constraint("Equal", 37, 65),
    Sketcher.Constraint("Equal", 71, 6),
    Sketcher.Constraint("Equal", 30, 32),
    Sketcher.Constraint("Equal", 32, 34),
    Sketcher.Constraint("DistanceX", 31, 2, 31, 1, Q("0.1 in")),
    Sketcher.Constraint("DistanceY", 4, 2, 4, 1, Q("0.378 in")),
    Sketcher.Constraint("DistanceX", 4, 2, -1, 1, Q("2.735 in")),
    Sketcher.Constraint("DistanceX", -1, 1, 29, 2, Q("2.965 in")),
    Sketcher.Constraint("DistanceX", 1, 1, 1, 2, 177.29),
    Sketcher.Constraint("DistanceY", 0, 1, 0, 2, 80.516),
    Sketcher.Constraint("DistanceX", 0, 2, -1, 1, 85.724),
    Sketcher.Constraint("DistanceY", -1, 1, 0, 2, 40.258),
])
pocket1 = body.newObject("PartDesign::Pocket", "Pocket")
pocket1.Profile = sketch2
pocket1.Length = Q("0.1 in")
pocket1.Reversed = True

# Sketch on XZ plane
sketch3 = body.newObject("Sketcher::SketchObject", "Sketch002")
sketch3.AttachmentSupport = (doc.getObject("XZ_Plane"), [""])
sketch3.MapMode = "FlatFace"
sketch3.AttachmentOffset = App.Placement(App.Vector(0, 0, -0.1 * 25.4), App.Rotation())
sketch3.addGeometry([
    Part.Circle(App.Vector(-58.801, 0, 0), App.Vector(0, 0, 1), 2.5),
    Part.Circle(App.Vector(-24.765, 0, 0), App.Vector(0, 0, 1), 2.5),
    Part.Circle(App.Vector(33.274, 0, 0), App.Vector(0, 0, 1), 2.5),
], False)
sketch3.addConstraint([
    Sketcher.Constraint("Equal", 0, 1),
    Sketcher.Constraint("Equal", 1, 2),
    Sketcher.Constraint("PointOnObject", 0, 3, -1),
    Sketcher.Constraint("PointOnObject", 1, 3, -1),
    Sketcher.Constraint("PointOnObject", 2, 3, -1),
    Sketcher.Constraint("Diameter", 0, 5.0),
    Sketcher.Constraint("DistanceX", -1, 1, 2, 3, Q("1.31 in")),
    Sketcher.Constraint("DistanceX", 0, 3, 1, 3, Q("1.34 in")),
    Sketcher.Constraint("DistanceX", 0, 3, -1, 1, Q("2.315 in")),
])
pocket2 = body.newObject("PartDesign::Pocket", "Pocket001")
pocket2.Profile = sketch3
pocket2.Type = "ThroughAll"
pocket2.Reversed = True

# Sketch on XZ plane
sketch4 = body.newObject("Sketcher::SketchObject", "Sketch003")
sketch4.AttachmentSupport = (doc.getObject("XZ_Plane"), [""])
sketch4.MapMode = "FlatFace"
sketch4.AttachmentOffset = App.Placement(App.Vector(0, 0, 0.435 * 25.4), App.Rotation())
sketch4.addGeometry([
    Part.Circle(App.Vector(51.943, 0, 0), App.Vector(0, 0, 1), 12.827),
    Part.Circle(App.Vector(51.943, 0, 0), App.Vector(0, 0, 1), 10.287),
], False)
sketch4.addConstraint([
    Sketcher.Constraint("Coincident", 1, 3, 0, 3),
    Sketcher.Constraint("PointOnObject", 0, 3, -1),
    Sketcher.Constraint("Diameter", 0, Q("1.01 in")),
    Sketcher.Constraint("Diameter", 1, Q("0.81 in")),
    Sketcher.Constraint("DistanceX", -1, 1, 0, 3, Q("2.045 in")),
])
pad2 = body.newObject("PartDesign::Pad", "Pad001")
pad2.Profile = sketch4
pad2.Length = Q("0.435 in")
pad2.Reversed = True

doc.recompute()
